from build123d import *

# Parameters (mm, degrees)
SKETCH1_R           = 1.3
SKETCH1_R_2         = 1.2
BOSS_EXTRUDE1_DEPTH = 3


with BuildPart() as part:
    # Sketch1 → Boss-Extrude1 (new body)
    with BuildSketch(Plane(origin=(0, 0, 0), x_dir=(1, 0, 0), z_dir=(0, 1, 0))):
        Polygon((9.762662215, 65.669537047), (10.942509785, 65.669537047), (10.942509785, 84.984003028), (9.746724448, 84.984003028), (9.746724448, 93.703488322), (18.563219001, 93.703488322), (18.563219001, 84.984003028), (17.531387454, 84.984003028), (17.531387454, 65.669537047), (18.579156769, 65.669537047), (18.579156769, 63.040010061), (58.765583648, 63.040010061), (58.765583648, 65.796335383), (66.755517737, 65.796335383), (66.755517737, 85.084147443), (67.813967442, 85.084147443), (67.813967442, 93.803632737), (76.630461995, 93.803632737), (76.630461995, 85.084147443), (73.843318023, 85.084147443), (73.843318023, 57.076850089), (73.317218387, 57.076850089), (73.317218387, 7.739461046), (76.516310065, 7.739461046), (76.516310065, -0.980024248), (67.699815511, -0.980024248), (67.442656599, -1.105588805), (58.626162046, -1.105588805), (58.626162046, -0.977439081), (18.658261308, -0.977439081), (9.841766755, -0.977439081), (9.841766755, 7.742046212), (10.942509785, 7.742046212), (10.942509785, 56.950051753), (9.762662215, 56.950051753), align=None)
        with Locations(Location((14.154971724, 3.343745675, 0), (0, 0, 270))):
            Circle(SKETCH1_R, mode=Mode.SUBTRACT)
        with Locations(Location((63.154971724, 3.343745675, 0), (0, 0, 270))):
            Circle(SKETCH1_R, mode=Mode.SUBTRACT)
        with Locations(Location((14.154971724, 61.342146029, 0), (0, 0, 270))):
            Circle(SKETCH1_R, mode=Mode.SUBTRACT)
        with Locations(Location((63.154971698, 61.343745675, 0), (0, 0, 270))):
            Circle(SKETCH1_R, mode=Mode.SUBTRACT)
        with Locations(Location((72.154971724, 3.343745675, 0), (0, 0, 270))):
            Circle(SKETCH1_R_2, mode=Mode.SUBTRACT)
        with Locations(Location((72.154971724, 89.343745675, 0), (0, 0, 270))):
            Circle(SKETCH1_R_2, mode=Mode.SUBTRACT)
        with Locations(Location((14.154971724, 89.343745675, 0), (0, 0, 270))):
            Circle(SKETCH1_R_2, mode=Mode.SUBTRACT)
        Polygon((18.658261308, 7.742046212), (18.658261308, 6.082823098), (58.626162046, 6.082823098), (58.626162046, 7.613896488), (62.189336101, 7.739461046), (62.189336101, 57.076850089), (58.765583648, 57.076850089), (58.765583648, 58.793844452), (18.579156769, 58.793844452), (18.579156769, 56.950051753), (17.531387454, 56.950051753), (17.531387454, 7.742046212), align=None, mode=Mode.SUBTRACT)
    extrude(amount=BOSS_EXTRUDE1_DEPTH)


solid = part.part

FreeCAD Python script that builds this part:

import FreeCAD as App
import Part
import Sketcher
from FreeCAD import Vector
Q = App.Units.Quantity

doc = App.newDocument("Part")
body = doc.addObject("PartDesign::Body", "Body")

sketch1 = body.newObject("Sketcher::SketchObject", "Sketch")
sketch1.AttachmentSupport = (doc.getObject("XZ_Plane"), [""])
sketch1.MapMode = "FlatFace"
sketch1.addGeometry([
    Part.LineSegment(Vector(10.94251, -65.669537, 0), Vector(9.762662, -65.669537, 0)),
    Part.LineSegment(Vector(9.762662, -65.669537, 0), Vector(9.762662, -56.950052, 0)),
    Part.LineSegment(Vector(9.762662, -56.950052, 0), Vector(10.94251, -56.950052, 0)),
    Part.LineSegment(Vector(10.94251, -56.950052, 0), Vector(10.94251, -7.742046, 0)),
    Part.LineSegment(Vector(10.94251, -7.742046, 0), Vector(9.841767, -7.742046, 0)),
    Part.LineSegment(Vector(9.841767, -7.742046, 0), Vector(9.841767, 0.977439, 0)),
    Part.LineSegment(Vector(9.841767, 0.977439, 0), Vector(58.626162, 0.977439, 0)),
    Part.LineSegment(Vector(58.626162, 0.977439, 0), Vector(58.626162, 1.105589, 0)),
    Part.LineSegment(Vector(58.626162, 1.105589, 0), Vector(67.442657, 1.105589, 0)),
    Part.LineSegment(Vector(67.442657, 1.105589, 0), Vector(67.699816, 0.980024, 0)),
    Part.LineSegment(Vector(67.699816, 0.980024, 0), Vector(76.51631, 0.980024, 0)),
    Part.LineSegment(Vector(76.51631, 0.980024, 0), Vector(76.51631, -7.739461, 0)),
    Part.LineSegment(Vector(76.51631, -7.739461, 0), Vector(73.317218, -7.739461, 0)),
    Part.LineSegment(Vector(73.317218, -7.739461, 0), Vector(73.317218, -57.07685, 0)),
    Part.LineSegment(Vector(73.317218, -57.07685, 0), Vector(73.843318, -57.07685, 0)),
    Part.LineSegment(Vector(73.843318, -57.07685, 0), Vector(73.843318, -85.084147, 0)),
    Part.LineSegment(Vector(73.843318, -85.084147, 0), Vector(76.630462, -85.084147, 0)),
    Part.LineSegment(Vector(76.630462, -85.084147, 0), Vector(76.630462, -93.803633, 0)),
    Part.LineSegment(Vector(76.630462, -93.803633, 0), Vector(67.813967, -93.803633, 0)),
    Part.LineSegment(Vector(67.813967, -93.803633, 0), Vector(67.813967, -85.084147, 0)),
    Part.LineSegment(Vector(67.813967, -85.084147, 0), Vector(66.755518, -85.084147, 0)),
    Part.LineSegment(Vector(66.755518, -85.084147, 0), Vector(66.755518, -65.796335, 0)),
    Part.LineSegment(Vector(66.755518, -65.796335, 0), Vector(58.765584, -65.796335, 0)),
    Part.LineSegment(Vector(58.765584, -65.796335, 0), Vector(58.765584, -63.04001, 0)),
    Part.LineSegment(Vector(58.765584, -63.04001, 0), Vector(18.579157, -63.04001, 0)),
    Part.LineSegment(Vector(18.579157, -63.04001, 0), Vector(18.579157, -65.669537, 0)),
    Part.LineSegment(Vector(18.579157, -65.669537, 0), Vector(17.531387, -65.669537, 0)),
    Part.LineSegment(Vector(17.531387, -65.669537, 0), Vector(17.531387, -84.984003, 0)),
    Part.LineSegment(Vector(17.531387, -84.984003, 0), Vector(18.563219, -84.984003, 0)),
    Part.LineSegment(Vector(18.563219, -84.984003, 0), Vector(18.563219, -93.703488, 0)),
    Part.LineSegment(Vector(18.563219, -93.703488, 0), Vector(9.746724, -93.703488, 0)),
    Part.LineSegment(Vector(9.746724, -93.703488, 0), Vector(9.746724, -84.984003, 0)),
    Part.LineSegment(Vector(9.746724, -84.984003, 0), Vector(10.94251, -84.984003, 0)),
    Part.LineSegment(Vector(10.94251, -84.984003, 0), Vector(10.94251, -65.669537, 0)),
    Part.Circle(Vector(72.154972, -3.343746, 0), Vector(0, 0, 1), 1.2),
    Part.Circle(Vector(63.154972, -3.343746, 0), Vector(0, 0, 1), 1.3),
    Part.Circle(Vector(14.154972, -3.343746, 0), Vector(0, 0, 1), 1.3),
    Part.LineSegment(Vector(18.658261, -7.742046, 0), Vector(17.531387, -7.742046, 0)),
    Part.LineSegment(Vector(17.531387, -7.742046, 0), Vector(17.531387, -56.950052, 0)),
    Part.LineSegment(Vector(17.531387, -56.950052, 0), Vector(18.579157, -56.950052, 0)),
    Part.LineSegment(Vector(18.579157, -56.950052, 0), Vector(18.579157, -58.793844, 0)),
    Part.LineSegment(Vector(18.579157, -58.793844, 0), Vector(58.765584, -58.793844, 0)),
    Part.LineSegment(Vector(58.765584, -58.793844, 0), Vector(58.765584, -57.07685, 0)),
    Part.LineSegment(Vector(58.765584, -57.07685, 0), Vector(62.189336, -57.07685, 0)),
    Part.LineSegment(Vector(62.189336, -57.07685, 0), Vector(62.189336, -7.739461, 0)),
    Part.LineSegment(Vector(62.189336, -7.739461, 0), Vector(58.626162, -7.613896, 0)),
    Part.LineSegment(Vector(58.626162, -7.613896, 0), Vector(58.626162, -6.082823, 0)),
    Part.LineSegment(Vector(58.626162, -6.082823, 0), Vector(18.658261, -6.082823, 0)),
    Part.LineSegment(Vector(18.658261, -6.082823, 0), Vector(18.658261, -7.742046, 0)),
    Part.Circle(Vector(63.154972, -61.343746, 0), Vector(0, 0, 1), 1.3),
    Part.Circle(Vector(72.154972, -89.343746, 0), Vector(0, 0, 1), 1.2),
    Part.Circle(Vector(14.154972, -61.342146, 0), Vector(0, 0, 1), 1.3),
    Part.Circle(Vector(14.154972, -89.343746, 0), Vector(0, 0, 1), 1.2),
], False)
sketch1.addConstraint([
    Sketcher.Constraint("Coincident", 0, 2, 1, 1),
    Sketcher.Constraint("Coincident", 1, 2, 2, 1),
    Sketcher.Constraint("Coincident", 2, 2, 3, 1),
    Sketcher.Constraint("Coincident", 3, 2, 4, 1),
    Sketcher.Constraint("Coincident", 4, 2, 5, 1),
    Sketcher.Constraint("Coincident", 5, 2, 6, 1),
    Sketcher.Constraint("Coincident", 6, 2, 7, 1),
    Sketcher.Constraint("Coincident", 7, 2, 8, 1),
    Sketcher.Constraint("Coincident", 8, 2, 9, 1),
    Sketcher.Constraint("Coincident", 9, 2, 10, 1),
    Sketcher.Constraint("Coincident", 10, 2, 11, 1),
    Sketcher.Constraint("Coincident", 11, 2, 12, 1),
    Sketcher.Constraint("Coincident", 12, 2, 13, 1),
    Sketcher.Constraint("Coincident", 13, 2, 14, 1),
    Sketcher.Constraint("Coincident", 14, 2, 15, 1),
    Sketcher.Constraint("Coincident", 15, 2, 16, 1),
    Sketcher.Constraint("Coincident", 16, 2, 17, 1),
    Sketcher.Constraint("Coincident", 17, 2, 18, 1),
    Sketcher.Constraint("Coincident", 18, 2, 19, 1),
    Sketcher.Constraint("Coincident", 19, 2, 20, 1),
    Sketcher.Constraint("Coincident", 20, 2, 21, 1),
    Sketcher.Constraint("Coincident", 21, 2, 22, 1),
    Sketcher.Constraint("Coincident", 22, 2, 23, 1),
    Sketcher.Constraint("Coincident", 23, 2, 24, 1),
    Sketcher.Constraint("Coincident", 24, 2, 25, 1),
    Sketcher.Constraint("Coincident", 25, 2, 26, 1),
    Sketcher.Constraint("Coincident", 26, 2, 27, 1),
    Sketcher.Constraint("Coincident", 27, 2, 28, 1),
    Sketcher.Constraint("Coincident", 28, 2, 29, 1),
    Sketcher.Constraint("Coincident", 29, 2, 30, 1),
    Sketcher.Constraint("Coincident", 30, 2, 31, 1),
    Sketcher.Constraint("Coincident", 31, 2, 32, 1),
    Sketcher.Constraint("Coincident", 32, 2, 33, 1),
    Sketcher.Constraint("Coincident", 33, 2, 0, 1),
    Sketcher.Constraint("Coincident", 37, 2, 38, 1),
    Sketcher.Constraint("Coincident", 38, 2, 39, 1),
    Sketcher.Constraint("Coincident", 39, 2, 40, 1),
    Sketcher.Constraint("Coincident", 40, 2, 41, 1),
    Sketcher.Constraint("Coincident", 41, 2, 42, 1),
    Sketcher.Constraint("Coincident", 42, 2, 43, 1),
    Sketcher.Constraint("Coincident", 43, 2, 44, 1),
    Sketcher.Constraint("Coincident", 44, 2, 45, 1),
    Sketcher.Constraint("Coincident", 45, 2, 46, 1),
    Sketcher.Constraint("Coincident", 46, 2, 47, 1),
    Sketcher.Constraint("Coincident", 47, 2, 48, 1),
    Sketcher.Constraint("Coincident", 48, 2, 37, 1),
    Sketcher.Constraint("Horizontal", 0),
    Sketcher.Constraint("Vertical", 1),
    Sketcher.Constraint("Horizontal", 2),
    Sketcher.Constraint("Vertical", 3),
    Sketcher.Constraint("Horizontal", 4),
    Sketcher.Constraint("Vertical", 5),
    Sketcher.Constraint("Horizontal", 6),
    Sketcher.Constraint("Vertical", 7),
    Sketcher.Constraint("Horizontal", 8),
    Sketcher.Constraint("Horizontal", 10),
    Sketcher.Constraint("Vertical", 11),
    Sketcher.Constraint("Horizontal", 12),
    Sketcher.Constraint("Vertical", 13),
    Sketcher.Constraint("Horizontal", 14),
    Sketcher.Constraint("Vertical", 15),
    Sketcher.Constraint("Horizontal", 16),
    Sketcher.Constraint("Vertical", 17),
    Sketcher.Constraint("Horizontal", 18),
    Sketcher.Constraint("Vertical", 19),
    Sketcher.Constraint("Horizontal", 20),
    Sketcher.Constraint("Vertical", 21),
    Sketcher.Constraint("Horizontal", 22),
    Sketcher.Constraint("Vertical", 23),
    Sketcher.Constraint("Horizontal", 24),
    Sketcher.Constraint("Vertical", 25),
    Sketcher.Constraint("Horizontal", 26),
    Sketcher.Constraint("Vertical", 27),
    Sketcher.Constraint("Horizontal", 28),
    Sketcher.Constraint("Vertical", 29),
    Sketcher.Constraint("Horizontal", 30),
    Sketcher.Constraint("Vertical", 31),
    Sketcher.Constraint("Horizontal", 32),
    Sketcher.Constraint("Vertical", 33),
    Sketcher.Constraint("Horizontal", 37),
    Sketcher.Constraint("Vertical", 38),
    Sketcher.Constraint("Horizontal", 39),
    Sketcher.Constraint("Vertical", 40),
    Sketcher.Constraint("Horizontal", 41),
    Sketcher.Constraint("Vertical", 42),
    Sketcher.Constraint("Horizontal", 43),
    Sketcher.Constraint("Vertical", 44),
    Sketcher.Constraint("Vertical", 46),
    Sketcher.Constraint("Horizontal", 47),
    Sketcher.Constraint("Vertical", 48),
    Sketcher.Constraint("Equal", 35, 36),
    Sketcher.Constraint("Equal", 36, 49),
    Sketcher.Constraint("Equal", 34, 50),
    Sketcher.Constraint("Equal", 49, 51),
    Sketcher.Constraint("Equal", 50, 52),
    Sketcher.Constraint("Horizontal", 34, 3, 35, 3),
    Sketcher.Constraint("Horizontal", 35, 3, 36, 3),
    Sketcher.Constraint("Horizontal", 50, 3, 52, 3),
    Sketcher.Constraint("Horizontal", 16, 2, 19, 2),
    Sketcher.Constraint("Horizontal", 0, 2, 25, 2),
    Sketcher.Constraint("Horizontal", 28, 2, 31, 2),
    Sketcher.Constraint("Horizontal", 4, 2, 37, 2),
    Sketcher.Constraint("Horizontal", 2, 2, 38, 2),
    Sketcher.Constraint("Horizontal", 14, 2, 42, 2),
    Sketcher.Constraint("Horizontal", 12, 2, 44, 2),
    Sketcher.Constraint("Vertical", 35, 3, 49, 3),
    Sketcher.Constraint("Vertical", 34, 3, 50, 3),
    Sketcher.Constraint("Vertical", 36, 3, 51, 3),
    Sketcher.Constraint("Vertical", 51, 3, 52, 3),
    Sketcher.Constraint("Vertical", 3, 2, 32, 2),
    Sketcher.Constraint("Vertical", 27, 2, 37, 2),
    Sketcher.Constraint("Vertical", 25, 2, 39, 2),
    Sketcher.Constraint("Vertical", 23, 2, 41, 2),
    Sketcher.Constraint("Vertical", 7, 2, 45, 2),
    Sketcher.Constraint("Equal", 8, 10),
    Sketcher.Constraint("Equal", 10, 18),
    Sketcher.Constraint("Equal", 18, 30),
    Sketcher.Constraint("Equal", 1, 5),
    Sketcher.Constraint("Equal", 5, 11),
    Sketcher.Constraint("Equal", 11, 17),
    Sketcher.Constraint("Equal", 19, 29),
    Sketcher.Constraint("Diameter", 34, Q("2.4 mm")),
    Sketcher.Constraint("Diameter", 35, Q("2.6 mm")),
    Sketcher.Constraint("DistanceX", 35, 3, 34, 3, Q("9 mm")),
    Sketcher.Constraint("DistanceX", 36, 3, 35, 3, Q("49 mm")),
    Sketcher.Constraint("DistanceY", 49, 3, 35, 3, Q("58 mm")),
    Sketcher.Constraint("DistanceY", 50, 3, 49, 3, Q("28 mm")),
    Sketcher.Constraint("DistanceX", 14, 1, 14, 2, Q("0.5261 mm")),
    Sketcher.Constraint("DistanceX", 47, 2, 47, 1, Q("39.967901 mm")),
    Sketcher.Constraint("DistanceX", 12, 2, 12, 1, Q("3.199092 mm")),
    Sketcher.Constraint("DistanceX", 20, 2, 20, 1, Q("1.05845 mm")),
    Sketcher.Constraint("DistanceX", 26, 2, 26, 1, Q("1.047769 mm")),
    Sketcher.Constraint("DistanceX", 28, 1, 28, 2, Q("1.031832 mm")),
    Sketcher.Constraint("DistanceY", 7, 1, 7, 2, Q("0.12815 mm")),
    Sketcher.Constraint("DistanceY", 13, 2, 13, 1, Q("49.337389 mm")),
    Sketcher.Constraint("DistanceY", 49, 3, 51, 3, Q("0.0016 mm")),
    Sketcher.Constraint("DistanceY", 3, 2, 36, 3, Q("4.398301 mm")),
    Sketcher.Constraint("DistanceY", 50, 3, 15, 2, Q("4.259598 mm")),
    Sketcher.Constraint("DistanceX", 20, 2, 15, 2, Q("7.0878 mm")),
    Sketcher.Constraint("DistanceY", 51, 3, 40, 2, Q("2.548302 mm")),
    Sketcher.Constraint("DistanceY", 44, 2, 6, 2, Q("8.7169 mm")),
    Sketcher.Constraint("DistanceX", 0, 2, 0, 1, Q("1.179848 mm")),
    Sketcher.Constraint("DistanceX", 4, 2, 4, 1, Q("1.100743 mm")),
    Sketcher.Constraint("DistanceX", 6, 1, 6, 2, Q("48.784395 mm")),
    Sketcher.Constraint("DistanceX", 8, 1, 8, 2, Q("8.816495 mm")),
    Sketcher.Constraint("DistanceX", 22, 2, 22, 1, Q("7.989934 mm")),
    Sketcher.Constraint("DistanceX", 24, 2, 24, 1, Q("40.186427 mm")),
    Sketcher.Constraint("DistanceX", 32, 1, 32, 2, Q("1.195785 mm")),
    Sketcher.Constraint("DistanceX", 43, 1, 43, 2, Q("3.423752 mm")),
    Sketcher.Constraint("DistanceY", 1, 1, 1, 2, Q("8.719485 mm")),
    Sketcher.Constraint("DistanceY", 3, 1, 3, 2, Q("49.208006 mm")),
    Sketcher.Constraint("DistanceY", 21, 1, 21, 2, Q("19.287812 mm")),
    Sketcher.Constraint("DistanceY", 23, 1, 23, 2, Q("2.756325 mm")),
    Sketcher.Constraint("DistanceY", 27, 2, 27, 1, Q("19.314466 mm")),
    Sketcher.Constraint("DistanceY", 46, 1, 46, 2, Q("1.531073 mm")),
    Sketcher.Constraint("DistanceY", 48, 2, 48, 1, Q("1.659223 mm")),
    Sketcher.Constraint("DistanceX", -1, 1, 34, 3, Q("72.154972 mm")),
    Sketcher.Constraint("DistanceY", 1, 2, -1, 1, Q("56.950052 mm")),
    Sketcher.Constraint("DistanceX", -1, 1, 2, 2, Q("10.94251 mm")),
])
pad1 = body.newObject("PartDesign::Pad", "Pad")
pad1.Profile = sketch1
pad1.Length = 3
pad1.Reversed = True

doc.recompute()
